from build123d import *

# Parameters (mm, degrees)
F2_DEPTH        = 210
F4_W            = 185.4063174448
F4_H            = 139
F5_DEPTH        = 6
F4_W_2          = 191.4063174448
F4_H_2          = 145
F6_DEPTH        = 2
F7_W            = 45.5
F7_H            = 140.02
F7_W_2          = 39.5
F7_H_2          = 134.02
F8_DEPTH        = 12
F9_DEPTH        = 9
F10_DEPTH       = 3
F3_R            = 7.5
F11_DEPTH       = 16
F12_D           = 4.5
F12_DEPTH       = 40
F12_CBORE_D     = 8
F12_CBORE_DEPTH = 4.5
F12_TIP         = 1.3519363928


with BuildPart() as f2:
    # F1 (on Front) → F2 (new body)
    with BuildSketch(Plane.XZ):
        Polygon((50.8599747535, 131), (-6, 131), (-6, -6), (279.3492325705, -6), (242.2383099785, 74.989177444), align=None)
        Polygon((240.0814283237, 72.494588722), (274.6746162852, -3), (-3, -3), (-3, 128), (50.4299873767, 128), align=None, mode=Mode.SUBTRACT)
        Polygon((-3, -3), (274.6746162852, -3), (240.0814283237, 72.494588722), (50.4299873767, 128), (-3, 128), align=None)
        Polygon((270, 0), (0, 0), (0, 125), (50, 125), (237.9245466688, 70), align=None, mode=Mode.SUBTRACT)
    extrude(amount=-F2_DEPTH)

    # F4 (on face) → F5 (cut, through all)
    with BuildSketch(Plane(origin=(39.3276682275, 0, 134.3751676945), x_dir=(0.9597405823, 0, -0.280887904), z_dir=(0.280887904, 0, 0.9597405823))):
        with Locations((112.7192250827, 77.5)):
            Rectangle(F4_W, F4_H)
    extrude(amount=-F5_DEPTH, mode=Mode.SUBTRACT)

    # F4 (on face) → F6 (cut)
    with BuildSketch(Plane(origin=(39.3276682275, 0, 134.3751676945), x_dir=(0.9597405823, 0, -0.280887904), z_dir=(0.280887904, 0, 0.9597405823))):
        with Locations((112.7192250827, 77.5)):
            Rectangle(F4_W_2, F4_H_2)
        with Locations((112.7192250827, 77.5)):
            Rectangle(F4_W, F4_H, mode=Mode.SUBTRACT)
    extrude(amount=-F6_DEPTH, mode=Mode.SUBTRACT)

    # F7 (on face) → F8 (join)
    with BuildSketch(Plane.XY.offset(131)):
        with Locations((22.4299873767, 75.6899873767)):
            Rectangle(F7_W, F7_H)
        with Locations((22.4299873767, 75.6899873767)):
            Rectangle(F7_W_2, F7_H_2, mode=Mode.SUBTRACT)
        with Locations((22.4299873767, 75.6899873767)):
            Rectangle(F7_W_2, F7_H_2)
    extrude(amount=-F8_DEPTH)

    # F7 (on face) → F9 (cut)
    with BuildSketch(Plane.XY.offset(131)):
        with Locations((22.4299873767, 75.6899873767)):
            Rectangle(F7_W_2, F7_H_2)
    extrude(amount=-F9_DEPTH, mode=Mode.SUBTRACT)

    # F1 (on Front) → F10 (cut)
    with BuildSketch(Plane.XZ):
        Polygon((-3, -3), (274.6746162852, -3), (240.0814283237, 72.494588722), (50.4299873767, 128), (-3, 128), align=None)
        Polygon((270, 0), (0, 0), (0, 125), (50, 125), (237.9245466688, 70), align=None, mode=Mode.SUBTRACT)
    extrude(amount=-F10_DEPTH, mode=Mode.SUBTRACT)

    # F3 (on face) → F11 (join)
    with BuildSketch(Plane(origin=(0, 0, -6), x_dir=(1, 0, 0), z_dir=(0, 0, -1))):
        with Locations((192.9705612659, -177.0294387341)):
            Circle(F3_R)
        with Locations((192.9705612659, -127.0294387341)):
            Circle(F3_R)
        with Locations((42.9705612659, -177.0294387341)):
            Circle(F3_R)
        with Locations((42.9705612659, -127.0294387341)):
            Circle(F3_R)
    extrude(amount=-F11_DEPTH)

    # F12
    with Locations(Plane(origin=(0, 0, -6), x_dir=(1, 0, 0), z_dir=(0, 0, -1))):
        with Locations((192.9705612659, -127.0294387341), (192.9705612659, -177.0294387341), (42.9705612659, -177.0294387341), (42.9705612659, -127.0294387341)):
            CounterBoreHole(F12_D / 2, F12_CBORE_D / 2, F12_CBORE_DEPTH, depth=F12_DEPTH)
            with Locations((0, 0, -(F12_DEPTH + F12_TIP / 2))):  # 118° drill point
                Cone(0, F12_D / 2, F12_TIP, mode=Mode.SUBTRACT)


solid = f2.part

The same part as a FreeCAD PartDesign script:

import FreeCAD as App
import Part
import Sketcher
Q = App.Units.Quantity

doc = App.newDocument("Part")
params = doc.addObject("Spreadsheet::Sheet", "Params")
for row, (alias, value) in enumerate([
    ("sketch1_width", "270 mm"),
    ("sketch1_width2", "50 mm"),
    ("sketch1_height", "137 mm"),
    ("sketch1_height2", "125 mm"),
    ("pad1_length", "210 mm"),
    ("sketch2_height", "139 mm"),
    ("pocket1_length", "6 mm"),
    ("sketch3_height", "145 mm"),
    ("sketch3_height2", "139 mm"),
    ("pocket2_length", "2 mm"),
    ("sketch4_width", "45.5 mm"),
    ("sketch4_height", "140.02 mm"),
    ("pad2_length", "12 mm"),
    ("sketch5_width", "39.5 mm"),
    ("sketch5_height", "134.02 mm"),
    ("pocket3_length", "9 mm"),
    ("sketch6_width", "270 mm"),
    ("sketch6_width2", "50 mm"),
    ("sketch6_height", "131 mm"),
    ("sketch6_height2", "125 mm"),
    ("pocket4_length", "3 mm"),
    ("sketch7_diameter", "15 mm"),
    ("pad3_length", "16 mm"),
    ("sketch8_diameter", "4.5 mm"),
    ("hole_diameter", "4.5 mm"),
    ("hole_depth", "40 mm"),
    ("hole_cbore_diameter", "8 mm"),
    ("hole_cbore_depth", "4.5 mm"),
], start=1):
    params.set(f"A{row}", alias)
    params.set(f"B{row}", "=" + value)
    params.setAlias(f"B{row}", alias)

body = doc.addObject("PartDesign::Body", "Body")

sketch1 = body.newObject("Sketcher::SketchObject", "Sketch")
sketch1.AttachmentSupport = (doc.getObject("XZ_Plane"), [""])
sketch1.MapMode = "FlatFace"
sketch1.addGeometry([
    Part.LineSegment(App.Vector(50.859975, 131, 0), App.Vector(-6, 131, 0)),
    Part.LineSegment(App.Vector(-6, 131, 0), App.Vector(-6, -6, 0)),
    Part.LineSegment(App.Vector(-6, -6, 0), App.Vector(279.349233, -6, 0)),
    Part.LineSegment(App.Vector(279.349233, -6, 0), App.Vector(242.23831, 74.989177, 0)),
    Part.LineSegment(App.Vector(242.23831, 74.989177, 0), App.Vector(50.859975, 131, 0)),
    Part.LineSegment(App.Vector(237.924547, 70, 0), App.Vector(270, 0, 0)),
    Part.LineSegment(App.Vector(270, 0, 0), App.Vector(0, 0, 0)),
    Part.LineSegment(App.Vector(0, 0, 0), App.Vector(0, 125, 0)),
    Part.LineSegment(App.Vector(0, 125, 0), App.Vector(50, 125, 0)),
    Part.LineSegment(App.Vector(50, 125, 0), App.Vector(237.924547, 70, 0)),
], False)
sketch1.addConstraint([
    Sketcher.Constraint("Coincident", 0, 2, 1, 1),
    Sketcher.Constraint("Coincident", 1, 2, 2, 1),
    Sketcher.Constraint("Coincident", 2, 2, 3, 1),
    Sketcher.Constraint("Coincident", 3, 2, 4, 1),
    Sketcher.Constraint("Coincident", 4, 2, 0, 1),
    Sketcher.Constraint("Coincident", 5, 2, 6, 1),
    Sketcher.Constraint("Coincident", 6, 2, 7, 1),
    Sketcher.Constraint("Coincident", 7, 2, 8, 1),
    Sketcher.Constraint("Coincident", 8, 2, 9, 1),
    Sketcher.Constraint("Coincident", 9, 2, 5, 1),
    Sketcher.Constraint("Horizontal", 0),
    Sketcher.Constraint("Vertical", 1),
    Sketcher.Constraint("Horizontal", 2),
    Sketcher.Constraint("Horizontal", 6),
    Sketcher.Constraint("Vertical", 7),
    Sketcher.Constraint("Horizontal", 8),
    Sketcher.Constraint("Coincident", 6, 2, -1, 1),
    Sketcher.Constraint("Parallel", 3, 5),
    Sketcher.Constraint("Parallel", 4, 9),
    Sketcher.Constraint("DistanceX", 6, 2, 6, 1, Q("270 mm")),
    Sketcher.Constraint("DistanceX", 8, 1, 8, 2, Q("50 mm")),
    Sketcher.Constraint("DistanceY", 1, 2, 1, 1, Q("137 mm")),
    Sketcher.Constraint("DistanceY", 7, 1, 7, 2, Q("125 mm")),
    Sketcher.Constraint("DistanceX", 0, 2, -1, 1, Q("6 mm")),
    Sketcher.Constraint("DistanceY", -1, 1, 0, 2, Q("131 mm")),
    Sketcher.Constraint("DistanceY", -1, 1, 9, 2, Q("70 mm")),
    Sketcher.Constraint("Distance", 9, Q("195.807649 mm")),
    Sketcher.Constraint("DistanceX", 0, 2, 0, 1, Q("56.859975 mm")),
    Sketcher.Constraint("DistanceX", 2, 1, 2, 2, Q("285.349233 mm")),
])
sketch1.setExpression("Constraints[19]", "Params.sketch1_width")
sketch1.setExpression("Constraints[20]", "Params.sketch1_width2")
sketch1.setExpression("Constraints[21]", "Params.sketch1_height")
sketch1.setExpression("Constraints[22]", "Params.sketch1_height2")
pad1 = body.newObject("PartDesign::Pad", "Pad")
pad1.Profile = sketch1
pad1.setExpression("Length", "Params.pad1_length")
pad1.Reversed = True

sketch2 = body.newObject("Sketcher::SketchObject", "Sketch001")
sketch2.Placement = App.Placement(App.Vector(39.327668, 0, 134.375168), App.Rotation(App.Vector(0.959740582, 0, -0.280887904), App.Vector(0, 0.999999999, 0), App.Vector(0.280887904, 0, 0.959740582), "ZXY"))
sketch2.addGeometry([
    Part.LineSegment(App.Vector(20.016066, 147, 0), App.Vector(20.016066, 8, 0)),
    Part.LineSegment(App.Vector(20.016066, 8, 0), App.Vector(205.422384, 8, 0)),
    Part.LineSegment(App.Vector(205.422384, 8, 0), App.Vector(205.422384, 147, 0)),
    Part.LineSegment(App.Vector(205.422384, 147, 0), App.Vector(20.016066, 147, 0)),
], False)
sketch2.addConstraint([
    Sketcher.Constraint("Coincident", 0, 2, 1, 1),
    Sketcher.Constraint("Coincident", 1, 2, 2, 1),
    Sketcher.Constraint("Coincident", 2, 2, 3, 1),
    Sketcher.Constraint("Coincident", 3, 2, 0, 1),
    Sketcher.Constraint("Vertical", 0),
    Sketcher.Constraint("Horizontal", 1),
    Sketcher.Constraint("Vertical", 2),
    Sketcher.Constraint("Horizontal", 3),
    Sketcher.Constraint("DistanceY", 0, 2, 0, 1, Q("139 mm")),
    Sketcher.Constraint("DistanceY", -1, 1, 0, 2, Q("8 mm")),
    Sketcher.Constraint("DistanceX", 1, 1, 1, 2, Q("185.406317 mm")),
    Sketcher.Constraint("DistanceX", -1, 1, 0, 2, Q("20.016066 mm")),
])
sketch2.setExpression("Constraints[8]", "Params.sketch2_height")
pocket1 = body.newObject("PartDesign::Pocket", "Pocket")
pocket1.Profile = sketch2
pocket1.setExpression("Length", "Params.pocket1_length")

sketch3 = body.newObject("Sketcher::SketchObject", "Sketch002")
sketch3.Placement = App.Placement(App.Vector(39.327668, 0, 134.375168), App.Rotation(App.Vector(0.959740582, 0, -0.280887904), App.Vector(0, 0.999999999, 0), App.Vector(0.280887904, 0, 0.959740582), "ZXY"))
sketch3.addGeometry([
    Part.LineSegment(App.Vector(17.016066, 150, 0), App.Vector(17.016066, 5, 0)),
    Part.LineSegment(App.Vector(17.016066, 5, 0), App.Vector(208.422384, 5, 0)),
    Part.LineSegment(App.Vector(208.422384, 5, 0), App.Vector(208.422384, 150, 0)),
    Part.LineSegment(App.Vector(208.422384, 150, 0), App.Vector(17.016066, 150, 0)),
    Part.LineSegment(App.Vector(205.422384, 8, 0), App.Vector(20.016066, 8, 0)),
    Part.LineSegment(App.Vector(20.016066, 8, 0), App.Vector(20.016066, 147, 0)),
    Part.LineSegment(App.Vector(20.016066, 147, 0), App.Vector(205.422384, 147, 0)),
    Part.LineSegment(App.Vector(205.422384, 147, 0), App.Vector(205.422384, 8, 0)),
], False)
sketch3.addConstraint([
    Sketcher.Constraint("Coincident", 0, 2, 1, 1),
    Sketcher.Constraint("Coincident", 1, 2, 2, 1),
    Sketcher.Constraint("Coincident", 2, 2, 3, 1),
    Sketcher.Constraint("Coincident", 3, 2, 0, 1),
    Sketcher.Constraint("Coincident", 4, 2, 5, 1),
    Sketcher.Constraint("Coincident", 5, 2, 6, 1),
    Sketcher.Constraint("Coincident", 6, 2, 7, 1),
    Sketcher.Constraint("Coincident", 7, 2, 4, 1),
    Sketcher.Constraint("Vertical", 0),
    Sketcher.Constraint("Horizontal", 1),
    Sketcher.Constraint("Vertical", 2),
    Sketcher.Constraint("Horizontal", 3),
    Sketcher.Constraint("Horizontal", 4),
    Sketcher.Constraint("Vertical", 5),
    Sketcher.Constraint("Horizontal", 6),
    Sketcher.Constraint("Vertical", 7),
    Sketcher.Constraint("DistanceY", 0, 2, 0, 1, Q("145 mm")),
    Sketcher.Constraint("DistanceY", 5, 1, 5, 2, Q("139 mm")),
    Sketcher.Constraint("DistanceY", -1, 1, 0, 2, Q("5 mm")),
    Sketcher.Constraint("DistanceY", -1, 1, 4, 2, Q("8 mm")),
    Sketcher.Constraint("DistanceX", 0, 2, 4, 2, Q("3 mm")),
    Sketcher.Constraint("DistanceX", 6, 2, 2, 2, Q("3 mm")),
    Sketcher.Constraint("DistanceX", 1, 1, 1, 2, Q("191.406317 mm")),
    Sketcher.Constraint("DistanceX", -1, 1, 0, 2, Q("17.016066 mm")),
])
sketch3.setExpression("Constraints[16]", "Params.sketch3_height")
sketch3.setExpression("Constraints[17]", "Params.sketch3_height2")
pocket2 = body.newObject("PartDesign::Pocket", "Pocket001")
pocket2.Profile = sketch3
pocket2.setExpression("Length", "Params.pocket2_length")

sketch4 = body.newObject("Sketcher::SketchObject", "Sketch003")
sketch4.AttachmentSupport = (doc.getObject("XY_Plane"), [""])
sketch4.MapMode = "FlatFace"
sketch4.AttachmentOffset = App.Placement(App.Vector(0, 0, 131), App.Rotation())
sketch4.addGeometry([
    Part.LineSegment(App.Vector(-0.320013, 145.699987, 0), App.Vector(-0.320013, 5.679987, 0)),
    Part.LineSegment(App.Vector(-0.320013, 5.679987, 0), App.Vector(45.179987, 5.679987, 0)),
    Part.LineSegment(App.Vector(45.179987, 5.679987, 0), App.Vector(45.179987, 145.699987, 0)),
    Part.LineSegment(App.Vector(45.179987, 145.699987, 0), App.Vector(-0.320013, 145.699987, 0)),
], False)
sketch4.addConstraint([
    Sketcher.Constraint("Coincident", 0, 2, 1, 1),
    Sketcher.Constraint("Coincident", 1, 2, 2, 1),
    Sketcher.Constraint("Coincident", 2, 2, 3, 1),
    Sketcher.Constraint("Coincident", 3, 2, 0, 1),
    Sketcher.Constraint("Vertical", 0),
    Sketcher.Constraint("Horizontal", 1),
    Sketcher.Constraint("Vertical", 2),
    Sketcher.Constraint("Horizontal", 3),
    Sketcher.Constraint("DistanceX", 1, 1, 1, 2, Q("45.5 mm")),
    Sketcher.Constraint("DistanceY", 0, 2, 0, 1, Q("140.02 mm")),
    Sketcher.Constraint("DistanceX", 0, 2, -1, 1, Q("0.320013 mm")),
    Sketcher.Constraint("DistanceY", -1, 1, 0, 2, Q("5.679987 mm")),
])
sketch4.setExpression("Constraints[8]", "Params.sketch4_width")
sketch4.setExpression("Constraints[9]", "Params.sketch4_height")
pad2 = body.newObject("PartDesign::Pad", "Pad001")
pad2.Profile = sketch4
pad2.setExpression("Length", "Params.pad2_length")
pad2.Reversed = True

sketch5 = body.newObject("Sketcher::SketchObject", "Sketch004")
sketch5.AttachmentSupport = (doc.getObject("XY_Plane"), [""])
sketch5.MapMode = "FlatFace"
sketch5.AttachmentOffset = App.Placement(App.Vector(0, 0, 131), App.Rotation())
sketch5.addGeometry([
    Part.LineSegment(App.Vector(2.679987, 142.699987, 0), App.Vector(2.679987, 8.679987, 0)),
    Part.LineSegment(App.Vector(2.679987, 8.679987, 0), App.Vector(42.179987, 8.679987, 0)),
    Part.LineSegment(App.Vector(42.179987, 8.679987, 0), App.Vector(42.179987, 142.699987, 0)),
    Part.LineSegment(App.Vector(42.179987, 142.699987, 0), App.Vector(2.679987, 142.699987, 0)),
], False)
sketch5.addConstraint([
    Sketcher.Constraint("Coincident", 0, 2, 1, 1),
    Sketcher.Constraint("Coincident", 1, 2, 2, 1),
    Sketcher.Constraint("Coincident", 2, 2, 3, 1),
    Sketcher.Constraint("Coincident", 3, 2, 0, 1),
    Sketcher.Constraint("Vertical", 0),
    Sketcher.Constraint("Horizontal", 1),
    Sketcher.Constraint("Vertical", 2),
    Sketcher.Constraint("Horizontal", 3),
    Sketcher.Constraint("DistanceX", 1, 1, 1, 2, Q("39.5 mm")),
    Sketcher.Constraint("DistanceY", 0, 2, 0, 1, Q("134.02 mm")),
    Sketcher.Constraint("DistanceX", -1, 1, 0, 2, Q("2.679987 mm")),
    Sketcher.Constraint("DistanceY", -1, 1, 0, 2, Q("8.679987 mm")),
])
sketch5.setExpression("Constraints[8]", "Params.sketch5_width")
sketch5.setExpression("Constraints[9]", "Params.sketch5_height")
pocket3 = body.newObject("PartDesign::Pocket", "Pocket002")
pocket3.Profile = sketch5
pocket3.setExpression("Length", "Params.pocket3_length")

sketch6 = body.newObject("Sketcher::SketchObject", "Sketch005")
sketch6.AttachmentSupport = (doc.getObject("XZ_Plane"), [""])
sketch6.MapMode = "FlatFace"
sketch6.addGeometry([
    Part.LineSegment(App.Vector(-3, -3, 0), App.Vector(274.674616, -3, 0)),
    Part.LineSegment(App.Vector(274.674616, -3, 0), App.Vector(240.081428, 72.494589, 0)),
    Part.LineSegment(App.Vector(240.081428, 72.494589, 0), App.Vector(50.429987, 128, 0)),
    Part.LineSegment(App.Vector(50.429987, 128, 0), App.Vector(-3, 128, 0)),
    Part.LineSegment(App.Vector(-3, 128, 0), App.Vector(-3, -3, 0)),
    Part.LineSegment(App.Vector(237.924547, 70, 0), App.Vector(270, 0, 0)),
    Part.LineSegment(App.Vector(270, 0, 0), App.Vector(0, 0, 0)),
    Part.LineSegment(App.Vector(0, 0, 0), App.Vector(0, 125, 0)),
    Part.LineSegment(App.Vector(0, 125, 0), App.Vector(50, 125, 0)),
    Part.LineSegment(App.Vector(50, 125, 0), App.Vector(237.924547, 70, 0)),
], False)
sketch6.addConstraint([
    Sketcher.Constraint("Coincident", 0, 2, 1, 1),
    Sketcher.Constraint("Coincident", 1, 2, 2, 1),
    Sketcher.Constraint("Coincident", 2, 2, 3, 1),
    Sketcher.Constraint("Coincident", 3, 2, 4, 1),
    Sketcher.Constraint("Coincident", 4, 2, 0, 1),
    Sketcher.Constraint("Coincident", 5, 2, 6, 1),
    Sketcher.Constraint("Coincident", 6, 2, 7, 1),
    Sketcher.Constraint("Coincident", 7, 2, 8, 1),
    Sketcher.Constraint("Coincident", 8, 2, 9, 1),
    Sketcher.Constraint("Coincident", 9, 2, 5, 1),
    Sketcher.Constraint("Horizontal", 0),
    Sketcher.Constraint("Horizontal", 3),
    Sketcher.Constraint("Vertical", 4),
    Sketcher.Constraint("Horizontal", 6),
    Sketcher.Constraint("Vertical", 7),
    Sketcher.Constraint("Horizontal", 8),
    Sketcher.Constraint("Coincident", 6, 2, -1, 1),
    Sketcher.Constraint("Parallel", 1, 5),
    Sketcher.Constraint("Parallel", 2, 9),
    Sketcher.Constraint("DistanceX", 6, 2, 6, 1, Q("270 mm")),
    Sketcher.Constraint("DistanceX", 8, 1, 8, 2, Q("50 mm")),
    Sketcher.Constraint("DistanceY", 4, 2, 4, 1, Q("131 mm")),
    Sketcher.Constraint("DistanceY", 7, 1, 7, 2, Q("125 mm")),
    Sketcher.Constraint("DistanceY", 0, 2, -1, 1, Q("3 mm")),
    Sketcher.Constraint("DistanceX", 3, 2, -1, 1, Q("3 mm")),
    Sketcher.Constraint("DistanceY", -1, 1, 9, 2, Q("70 mm")),
    Sketcher.Constraint("Distance", 1, Q("83.04289 mm")),
    Sketcher.Constraint("Distance", 9, Q("195.807649 mm")),
    Sketcher.Constraint("DistanceX", 0, 1, 0, 2, Q("277.674616 mm")),
])
sketch6.setExpression("Constraints[19]", "Params.sketch6_width")
sketch6.setExpression("Constraints[20]", "Params.sketch6_width2")
sketch6.setExpression("Constraints[21]", "Params.sketch6_height")
sketch6.setExpression("Constraints[22]", "Params.sketch6_height2")
pocket4 = body.newObject("PartDesign::Pocket", "Pocket003")
pocket4.Profile = sketch6
pocket4.setExpression("Length", "Params.pocket4_length")

sketch7 = body.newObject("Sketcher::SketchObject", "Sketch006")
sketch7.AttachmentSupport = (doc.getObject("XY_Plane"), [""])
sketch7.MapMode = "FlatFace"
sketch7.AttachmentOffset = App.Placement(App.Vector(0, 0, -6), App.Rotation())
sketch7.addGeometry([
    Part.Circle(App.Vector(192.970561, 177.029439, 0), App.Vector(0, 0, 1), 7.5),
    Part.Circle(App.Vector(192.970561, 127.029439, 0), App.Vector(0, 0, 1), 7.5),
    Part.Circle(App.Vector(42.970561, 177.029439, 0), App.Vector(0, 0, 1), 7.5),
    Part.Circle(App.Vector(42.970561, 127.029439, 0), App.Vector(0, 0, 1), 7.5),
], False)
sketch7.addConstraint([
    Sketcher.Constraint("Equal", 0, 1),
    Sketcher.Constraint("Equal", 1, 2),
    Sketcher.Constraint("Equal", 2, 3),
    Sketcher.Constraint("Horizontal", 0, 3, 2, 3),
    Sketcher.Constraint("Horizontal", 1, 3, 3, 3),
    Sketcher.Constraint("Vertical", 0, 3, 1, 3),
    Sketcher.Constraint("Vertical", 2, 3, 3, 3),
    Sketcher.Constraint("Diameter", 0, Q("15 mm")),
    Sketcher.Constraint("DistanceY", 1, 3, 0, 3, Q("50 mm")),
    Sketcher.Constraint("DistanceX", 2, 3, 0, 3, Q("150 mm")),
    Sketcher.Constraint("DistanceX", -1, 1, 0, 3, Q("192.970561 mm")),
    Sketcher.Constraint("DistanceY", -1, 1, 0, 3, Q("177.029439 mm")),
])
sketch7.setExpression("Constraints[7]", "Params.sketch7_diameter")
pad3 = body.newObject("PartDesign::Pad", "Pad002")
pad3.Profile = sketch7
pad3.setExpression("Length", "Params.pad3_length")

sketch8 = body.newObject("Sketcher::SketchObject", "Sketch007")
sketch8.AttachmentSupport = (doc.getObject("XY_Plane"), [""])
sketch8.MapMode = "FlatFace"
sketch8.AttachmentOffset = App.Placement(App.Vector(0, 0, -6), App.Rotation())
sketch8.addGeometry([
    Part.Circle(App.Vector(192.970561, 127.029439, 0), App.Vector(0, 0, 1), 2.25),
    Part.Circle(App.Vector(192.970561, 177.029439, 0), App.Vector(0, 0, 1), 2.25),
    Part.Circle(App.Vector(42.970561, 177.029439, 0), App.Vector(0, 0, 1), 2.25),
    Part.Circle(App.Vector(42.970561, 127.029439, 0), App.Vector(0, 0, 1), 2.25),
], False)
sketch8.addConstraint([
    Sketcher.Constraint("Equal", 0, 1),
    Sketcher.Constraint("Equal", 1, 2),
    Sketcher.Constraint("Equal", 2, 3),
    Sketcher.Constraint("Horizontal", 1, 3, 2, 3),
    Sketcher.Constraint("Horizontal", 0, 3, 3, 3),
    Sketcher.Constraint("Vertical", 0, 3, 1, 3),
    Sketcher.Constraint("Vertical", 2, 3, 3, 3),
    Sketcher.Constraint("Diameter", 0, Q("4.5 mm")),
    Sketcher.Constraint("DistanceY", 0, 3, 1, 3, Q("50 mm")),
    Sketcher.Constraint("DistanceX", 2, 3, 1, 3, Q("150 mm")),
    Sketcher.Constraint("DistanceX", -1, 1, 0, 3, Q("192.970561 mm")),
    Sketcher.Constraint("DistanceY", -1, 1, 0, 3, Q("127.029439 mm")),
])
sketch8.setExpression("Constraints[7]", "Params.sketch8_diameter")
doc.recompute()
hole = body.newObject("PartDesign::Hole", "Hole")
hole.Profile = sketch8
hole.ThreadType = "None"
hole.setExpression("Diameter", "Params.hole_diameter")
hole.DepthType = "Dimension"
hole.setExpression("Depth", "Params.hole_depth")
hole.DrillPoint = "Angled"
hole.DrillPointAngle = 118
hole.HoleCutType = "Counterbore"
hole.setExpression("HoleCutDiameter", "Params.hole_cbore_diameter")
hole.setExpression("HoleCutDepth", "Params.hole_cbore_depth")
hole.Reversed = True

doc.recompute()
